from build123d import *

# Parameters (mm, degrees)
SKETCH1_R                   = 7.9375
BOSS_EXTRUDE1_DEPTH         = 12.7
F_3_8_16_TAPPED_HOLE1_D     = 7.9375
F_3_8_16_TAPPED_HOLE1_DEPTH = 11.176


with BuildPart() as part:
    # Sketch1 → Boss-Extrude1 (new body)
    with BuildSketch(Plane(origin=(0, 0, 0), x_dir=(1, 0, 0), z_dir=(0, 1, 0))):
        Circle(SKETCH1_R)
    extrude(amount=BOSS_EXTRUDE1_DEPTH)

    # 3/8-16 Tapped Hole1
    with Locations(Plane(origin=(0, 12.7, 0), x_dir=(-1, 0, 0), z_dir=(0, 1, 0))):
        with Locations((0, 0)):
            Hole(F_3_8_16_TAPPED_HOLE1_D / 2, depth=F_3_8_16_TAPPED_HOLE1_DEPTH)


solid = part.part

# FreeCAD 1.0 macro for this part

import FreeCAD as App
import Part
import Sketcher
from FreeCAD import Vector
Q = App.Units.Quantity

doc = App.newDocument("Part")
body = doc.addObject("PartDesign::Body", "Body")

# Sketch on XZ plane
sketch1 = body.newObject("Sketcher::SketchObject", "Sketch")
sketch1.AttachmentSupport = (doc.getObject("XZ_Plane"), [""])
sketch1.MapMode = "FlatFace"
sketch1.addGeometry(Part.Circle(Vector(0, 0, 0), Vector(0, 0, 1), 8), False)
sketch1.addConstraint([
    Sketcher.Constraint("Coincident", 0, 3, -1, 1),
    Sketcher.Constraint("Diameter", 0, Q("0.625 in")),
])
pad1 = body.newObject("PartDesign::Pad", "Pad")
pad1.Profile = sketch1
pad1.Length = Q("0.5 in")
pad1.Reversed = True

# Sketch on XZ plane
sketch2 = body.newObject("Sketcher::SketchObject", "Sketch001")
sketch2.AttachmentSupport = (doc.getObject("XZ_Plane"), [""])
sketch2.MapMode = "FlatFace"
sketch2.AttachmentOffset = App.Placement(Vector(0, 0, -0.5 * 25.4), App.Rotation())
sketch2.addGeometry(Part.Circle(Vector(0, 0, 0), Vector(0, 0, 1), 4), False)
sketch2.addConstraint([
    Sketcher.Constraint("Coincident", 0, 3, -1, 1),
    Sketcher.Constraint("Diameter", 0, Q("0.3125 in")),
])
doc.recompute()
hole = body.newObject("PartDesign::Hole", "Hole")
hole.Profile = sketch2
hole.ThreadType = "None"
hole.Diameter = Q("0.3125 in")
hole.DepthType = "Dimension"
hole.Depth = Q("0.44 in")
hole.DrillPoint = "Flat"
hole.Reversed = True

doc.recompute()
